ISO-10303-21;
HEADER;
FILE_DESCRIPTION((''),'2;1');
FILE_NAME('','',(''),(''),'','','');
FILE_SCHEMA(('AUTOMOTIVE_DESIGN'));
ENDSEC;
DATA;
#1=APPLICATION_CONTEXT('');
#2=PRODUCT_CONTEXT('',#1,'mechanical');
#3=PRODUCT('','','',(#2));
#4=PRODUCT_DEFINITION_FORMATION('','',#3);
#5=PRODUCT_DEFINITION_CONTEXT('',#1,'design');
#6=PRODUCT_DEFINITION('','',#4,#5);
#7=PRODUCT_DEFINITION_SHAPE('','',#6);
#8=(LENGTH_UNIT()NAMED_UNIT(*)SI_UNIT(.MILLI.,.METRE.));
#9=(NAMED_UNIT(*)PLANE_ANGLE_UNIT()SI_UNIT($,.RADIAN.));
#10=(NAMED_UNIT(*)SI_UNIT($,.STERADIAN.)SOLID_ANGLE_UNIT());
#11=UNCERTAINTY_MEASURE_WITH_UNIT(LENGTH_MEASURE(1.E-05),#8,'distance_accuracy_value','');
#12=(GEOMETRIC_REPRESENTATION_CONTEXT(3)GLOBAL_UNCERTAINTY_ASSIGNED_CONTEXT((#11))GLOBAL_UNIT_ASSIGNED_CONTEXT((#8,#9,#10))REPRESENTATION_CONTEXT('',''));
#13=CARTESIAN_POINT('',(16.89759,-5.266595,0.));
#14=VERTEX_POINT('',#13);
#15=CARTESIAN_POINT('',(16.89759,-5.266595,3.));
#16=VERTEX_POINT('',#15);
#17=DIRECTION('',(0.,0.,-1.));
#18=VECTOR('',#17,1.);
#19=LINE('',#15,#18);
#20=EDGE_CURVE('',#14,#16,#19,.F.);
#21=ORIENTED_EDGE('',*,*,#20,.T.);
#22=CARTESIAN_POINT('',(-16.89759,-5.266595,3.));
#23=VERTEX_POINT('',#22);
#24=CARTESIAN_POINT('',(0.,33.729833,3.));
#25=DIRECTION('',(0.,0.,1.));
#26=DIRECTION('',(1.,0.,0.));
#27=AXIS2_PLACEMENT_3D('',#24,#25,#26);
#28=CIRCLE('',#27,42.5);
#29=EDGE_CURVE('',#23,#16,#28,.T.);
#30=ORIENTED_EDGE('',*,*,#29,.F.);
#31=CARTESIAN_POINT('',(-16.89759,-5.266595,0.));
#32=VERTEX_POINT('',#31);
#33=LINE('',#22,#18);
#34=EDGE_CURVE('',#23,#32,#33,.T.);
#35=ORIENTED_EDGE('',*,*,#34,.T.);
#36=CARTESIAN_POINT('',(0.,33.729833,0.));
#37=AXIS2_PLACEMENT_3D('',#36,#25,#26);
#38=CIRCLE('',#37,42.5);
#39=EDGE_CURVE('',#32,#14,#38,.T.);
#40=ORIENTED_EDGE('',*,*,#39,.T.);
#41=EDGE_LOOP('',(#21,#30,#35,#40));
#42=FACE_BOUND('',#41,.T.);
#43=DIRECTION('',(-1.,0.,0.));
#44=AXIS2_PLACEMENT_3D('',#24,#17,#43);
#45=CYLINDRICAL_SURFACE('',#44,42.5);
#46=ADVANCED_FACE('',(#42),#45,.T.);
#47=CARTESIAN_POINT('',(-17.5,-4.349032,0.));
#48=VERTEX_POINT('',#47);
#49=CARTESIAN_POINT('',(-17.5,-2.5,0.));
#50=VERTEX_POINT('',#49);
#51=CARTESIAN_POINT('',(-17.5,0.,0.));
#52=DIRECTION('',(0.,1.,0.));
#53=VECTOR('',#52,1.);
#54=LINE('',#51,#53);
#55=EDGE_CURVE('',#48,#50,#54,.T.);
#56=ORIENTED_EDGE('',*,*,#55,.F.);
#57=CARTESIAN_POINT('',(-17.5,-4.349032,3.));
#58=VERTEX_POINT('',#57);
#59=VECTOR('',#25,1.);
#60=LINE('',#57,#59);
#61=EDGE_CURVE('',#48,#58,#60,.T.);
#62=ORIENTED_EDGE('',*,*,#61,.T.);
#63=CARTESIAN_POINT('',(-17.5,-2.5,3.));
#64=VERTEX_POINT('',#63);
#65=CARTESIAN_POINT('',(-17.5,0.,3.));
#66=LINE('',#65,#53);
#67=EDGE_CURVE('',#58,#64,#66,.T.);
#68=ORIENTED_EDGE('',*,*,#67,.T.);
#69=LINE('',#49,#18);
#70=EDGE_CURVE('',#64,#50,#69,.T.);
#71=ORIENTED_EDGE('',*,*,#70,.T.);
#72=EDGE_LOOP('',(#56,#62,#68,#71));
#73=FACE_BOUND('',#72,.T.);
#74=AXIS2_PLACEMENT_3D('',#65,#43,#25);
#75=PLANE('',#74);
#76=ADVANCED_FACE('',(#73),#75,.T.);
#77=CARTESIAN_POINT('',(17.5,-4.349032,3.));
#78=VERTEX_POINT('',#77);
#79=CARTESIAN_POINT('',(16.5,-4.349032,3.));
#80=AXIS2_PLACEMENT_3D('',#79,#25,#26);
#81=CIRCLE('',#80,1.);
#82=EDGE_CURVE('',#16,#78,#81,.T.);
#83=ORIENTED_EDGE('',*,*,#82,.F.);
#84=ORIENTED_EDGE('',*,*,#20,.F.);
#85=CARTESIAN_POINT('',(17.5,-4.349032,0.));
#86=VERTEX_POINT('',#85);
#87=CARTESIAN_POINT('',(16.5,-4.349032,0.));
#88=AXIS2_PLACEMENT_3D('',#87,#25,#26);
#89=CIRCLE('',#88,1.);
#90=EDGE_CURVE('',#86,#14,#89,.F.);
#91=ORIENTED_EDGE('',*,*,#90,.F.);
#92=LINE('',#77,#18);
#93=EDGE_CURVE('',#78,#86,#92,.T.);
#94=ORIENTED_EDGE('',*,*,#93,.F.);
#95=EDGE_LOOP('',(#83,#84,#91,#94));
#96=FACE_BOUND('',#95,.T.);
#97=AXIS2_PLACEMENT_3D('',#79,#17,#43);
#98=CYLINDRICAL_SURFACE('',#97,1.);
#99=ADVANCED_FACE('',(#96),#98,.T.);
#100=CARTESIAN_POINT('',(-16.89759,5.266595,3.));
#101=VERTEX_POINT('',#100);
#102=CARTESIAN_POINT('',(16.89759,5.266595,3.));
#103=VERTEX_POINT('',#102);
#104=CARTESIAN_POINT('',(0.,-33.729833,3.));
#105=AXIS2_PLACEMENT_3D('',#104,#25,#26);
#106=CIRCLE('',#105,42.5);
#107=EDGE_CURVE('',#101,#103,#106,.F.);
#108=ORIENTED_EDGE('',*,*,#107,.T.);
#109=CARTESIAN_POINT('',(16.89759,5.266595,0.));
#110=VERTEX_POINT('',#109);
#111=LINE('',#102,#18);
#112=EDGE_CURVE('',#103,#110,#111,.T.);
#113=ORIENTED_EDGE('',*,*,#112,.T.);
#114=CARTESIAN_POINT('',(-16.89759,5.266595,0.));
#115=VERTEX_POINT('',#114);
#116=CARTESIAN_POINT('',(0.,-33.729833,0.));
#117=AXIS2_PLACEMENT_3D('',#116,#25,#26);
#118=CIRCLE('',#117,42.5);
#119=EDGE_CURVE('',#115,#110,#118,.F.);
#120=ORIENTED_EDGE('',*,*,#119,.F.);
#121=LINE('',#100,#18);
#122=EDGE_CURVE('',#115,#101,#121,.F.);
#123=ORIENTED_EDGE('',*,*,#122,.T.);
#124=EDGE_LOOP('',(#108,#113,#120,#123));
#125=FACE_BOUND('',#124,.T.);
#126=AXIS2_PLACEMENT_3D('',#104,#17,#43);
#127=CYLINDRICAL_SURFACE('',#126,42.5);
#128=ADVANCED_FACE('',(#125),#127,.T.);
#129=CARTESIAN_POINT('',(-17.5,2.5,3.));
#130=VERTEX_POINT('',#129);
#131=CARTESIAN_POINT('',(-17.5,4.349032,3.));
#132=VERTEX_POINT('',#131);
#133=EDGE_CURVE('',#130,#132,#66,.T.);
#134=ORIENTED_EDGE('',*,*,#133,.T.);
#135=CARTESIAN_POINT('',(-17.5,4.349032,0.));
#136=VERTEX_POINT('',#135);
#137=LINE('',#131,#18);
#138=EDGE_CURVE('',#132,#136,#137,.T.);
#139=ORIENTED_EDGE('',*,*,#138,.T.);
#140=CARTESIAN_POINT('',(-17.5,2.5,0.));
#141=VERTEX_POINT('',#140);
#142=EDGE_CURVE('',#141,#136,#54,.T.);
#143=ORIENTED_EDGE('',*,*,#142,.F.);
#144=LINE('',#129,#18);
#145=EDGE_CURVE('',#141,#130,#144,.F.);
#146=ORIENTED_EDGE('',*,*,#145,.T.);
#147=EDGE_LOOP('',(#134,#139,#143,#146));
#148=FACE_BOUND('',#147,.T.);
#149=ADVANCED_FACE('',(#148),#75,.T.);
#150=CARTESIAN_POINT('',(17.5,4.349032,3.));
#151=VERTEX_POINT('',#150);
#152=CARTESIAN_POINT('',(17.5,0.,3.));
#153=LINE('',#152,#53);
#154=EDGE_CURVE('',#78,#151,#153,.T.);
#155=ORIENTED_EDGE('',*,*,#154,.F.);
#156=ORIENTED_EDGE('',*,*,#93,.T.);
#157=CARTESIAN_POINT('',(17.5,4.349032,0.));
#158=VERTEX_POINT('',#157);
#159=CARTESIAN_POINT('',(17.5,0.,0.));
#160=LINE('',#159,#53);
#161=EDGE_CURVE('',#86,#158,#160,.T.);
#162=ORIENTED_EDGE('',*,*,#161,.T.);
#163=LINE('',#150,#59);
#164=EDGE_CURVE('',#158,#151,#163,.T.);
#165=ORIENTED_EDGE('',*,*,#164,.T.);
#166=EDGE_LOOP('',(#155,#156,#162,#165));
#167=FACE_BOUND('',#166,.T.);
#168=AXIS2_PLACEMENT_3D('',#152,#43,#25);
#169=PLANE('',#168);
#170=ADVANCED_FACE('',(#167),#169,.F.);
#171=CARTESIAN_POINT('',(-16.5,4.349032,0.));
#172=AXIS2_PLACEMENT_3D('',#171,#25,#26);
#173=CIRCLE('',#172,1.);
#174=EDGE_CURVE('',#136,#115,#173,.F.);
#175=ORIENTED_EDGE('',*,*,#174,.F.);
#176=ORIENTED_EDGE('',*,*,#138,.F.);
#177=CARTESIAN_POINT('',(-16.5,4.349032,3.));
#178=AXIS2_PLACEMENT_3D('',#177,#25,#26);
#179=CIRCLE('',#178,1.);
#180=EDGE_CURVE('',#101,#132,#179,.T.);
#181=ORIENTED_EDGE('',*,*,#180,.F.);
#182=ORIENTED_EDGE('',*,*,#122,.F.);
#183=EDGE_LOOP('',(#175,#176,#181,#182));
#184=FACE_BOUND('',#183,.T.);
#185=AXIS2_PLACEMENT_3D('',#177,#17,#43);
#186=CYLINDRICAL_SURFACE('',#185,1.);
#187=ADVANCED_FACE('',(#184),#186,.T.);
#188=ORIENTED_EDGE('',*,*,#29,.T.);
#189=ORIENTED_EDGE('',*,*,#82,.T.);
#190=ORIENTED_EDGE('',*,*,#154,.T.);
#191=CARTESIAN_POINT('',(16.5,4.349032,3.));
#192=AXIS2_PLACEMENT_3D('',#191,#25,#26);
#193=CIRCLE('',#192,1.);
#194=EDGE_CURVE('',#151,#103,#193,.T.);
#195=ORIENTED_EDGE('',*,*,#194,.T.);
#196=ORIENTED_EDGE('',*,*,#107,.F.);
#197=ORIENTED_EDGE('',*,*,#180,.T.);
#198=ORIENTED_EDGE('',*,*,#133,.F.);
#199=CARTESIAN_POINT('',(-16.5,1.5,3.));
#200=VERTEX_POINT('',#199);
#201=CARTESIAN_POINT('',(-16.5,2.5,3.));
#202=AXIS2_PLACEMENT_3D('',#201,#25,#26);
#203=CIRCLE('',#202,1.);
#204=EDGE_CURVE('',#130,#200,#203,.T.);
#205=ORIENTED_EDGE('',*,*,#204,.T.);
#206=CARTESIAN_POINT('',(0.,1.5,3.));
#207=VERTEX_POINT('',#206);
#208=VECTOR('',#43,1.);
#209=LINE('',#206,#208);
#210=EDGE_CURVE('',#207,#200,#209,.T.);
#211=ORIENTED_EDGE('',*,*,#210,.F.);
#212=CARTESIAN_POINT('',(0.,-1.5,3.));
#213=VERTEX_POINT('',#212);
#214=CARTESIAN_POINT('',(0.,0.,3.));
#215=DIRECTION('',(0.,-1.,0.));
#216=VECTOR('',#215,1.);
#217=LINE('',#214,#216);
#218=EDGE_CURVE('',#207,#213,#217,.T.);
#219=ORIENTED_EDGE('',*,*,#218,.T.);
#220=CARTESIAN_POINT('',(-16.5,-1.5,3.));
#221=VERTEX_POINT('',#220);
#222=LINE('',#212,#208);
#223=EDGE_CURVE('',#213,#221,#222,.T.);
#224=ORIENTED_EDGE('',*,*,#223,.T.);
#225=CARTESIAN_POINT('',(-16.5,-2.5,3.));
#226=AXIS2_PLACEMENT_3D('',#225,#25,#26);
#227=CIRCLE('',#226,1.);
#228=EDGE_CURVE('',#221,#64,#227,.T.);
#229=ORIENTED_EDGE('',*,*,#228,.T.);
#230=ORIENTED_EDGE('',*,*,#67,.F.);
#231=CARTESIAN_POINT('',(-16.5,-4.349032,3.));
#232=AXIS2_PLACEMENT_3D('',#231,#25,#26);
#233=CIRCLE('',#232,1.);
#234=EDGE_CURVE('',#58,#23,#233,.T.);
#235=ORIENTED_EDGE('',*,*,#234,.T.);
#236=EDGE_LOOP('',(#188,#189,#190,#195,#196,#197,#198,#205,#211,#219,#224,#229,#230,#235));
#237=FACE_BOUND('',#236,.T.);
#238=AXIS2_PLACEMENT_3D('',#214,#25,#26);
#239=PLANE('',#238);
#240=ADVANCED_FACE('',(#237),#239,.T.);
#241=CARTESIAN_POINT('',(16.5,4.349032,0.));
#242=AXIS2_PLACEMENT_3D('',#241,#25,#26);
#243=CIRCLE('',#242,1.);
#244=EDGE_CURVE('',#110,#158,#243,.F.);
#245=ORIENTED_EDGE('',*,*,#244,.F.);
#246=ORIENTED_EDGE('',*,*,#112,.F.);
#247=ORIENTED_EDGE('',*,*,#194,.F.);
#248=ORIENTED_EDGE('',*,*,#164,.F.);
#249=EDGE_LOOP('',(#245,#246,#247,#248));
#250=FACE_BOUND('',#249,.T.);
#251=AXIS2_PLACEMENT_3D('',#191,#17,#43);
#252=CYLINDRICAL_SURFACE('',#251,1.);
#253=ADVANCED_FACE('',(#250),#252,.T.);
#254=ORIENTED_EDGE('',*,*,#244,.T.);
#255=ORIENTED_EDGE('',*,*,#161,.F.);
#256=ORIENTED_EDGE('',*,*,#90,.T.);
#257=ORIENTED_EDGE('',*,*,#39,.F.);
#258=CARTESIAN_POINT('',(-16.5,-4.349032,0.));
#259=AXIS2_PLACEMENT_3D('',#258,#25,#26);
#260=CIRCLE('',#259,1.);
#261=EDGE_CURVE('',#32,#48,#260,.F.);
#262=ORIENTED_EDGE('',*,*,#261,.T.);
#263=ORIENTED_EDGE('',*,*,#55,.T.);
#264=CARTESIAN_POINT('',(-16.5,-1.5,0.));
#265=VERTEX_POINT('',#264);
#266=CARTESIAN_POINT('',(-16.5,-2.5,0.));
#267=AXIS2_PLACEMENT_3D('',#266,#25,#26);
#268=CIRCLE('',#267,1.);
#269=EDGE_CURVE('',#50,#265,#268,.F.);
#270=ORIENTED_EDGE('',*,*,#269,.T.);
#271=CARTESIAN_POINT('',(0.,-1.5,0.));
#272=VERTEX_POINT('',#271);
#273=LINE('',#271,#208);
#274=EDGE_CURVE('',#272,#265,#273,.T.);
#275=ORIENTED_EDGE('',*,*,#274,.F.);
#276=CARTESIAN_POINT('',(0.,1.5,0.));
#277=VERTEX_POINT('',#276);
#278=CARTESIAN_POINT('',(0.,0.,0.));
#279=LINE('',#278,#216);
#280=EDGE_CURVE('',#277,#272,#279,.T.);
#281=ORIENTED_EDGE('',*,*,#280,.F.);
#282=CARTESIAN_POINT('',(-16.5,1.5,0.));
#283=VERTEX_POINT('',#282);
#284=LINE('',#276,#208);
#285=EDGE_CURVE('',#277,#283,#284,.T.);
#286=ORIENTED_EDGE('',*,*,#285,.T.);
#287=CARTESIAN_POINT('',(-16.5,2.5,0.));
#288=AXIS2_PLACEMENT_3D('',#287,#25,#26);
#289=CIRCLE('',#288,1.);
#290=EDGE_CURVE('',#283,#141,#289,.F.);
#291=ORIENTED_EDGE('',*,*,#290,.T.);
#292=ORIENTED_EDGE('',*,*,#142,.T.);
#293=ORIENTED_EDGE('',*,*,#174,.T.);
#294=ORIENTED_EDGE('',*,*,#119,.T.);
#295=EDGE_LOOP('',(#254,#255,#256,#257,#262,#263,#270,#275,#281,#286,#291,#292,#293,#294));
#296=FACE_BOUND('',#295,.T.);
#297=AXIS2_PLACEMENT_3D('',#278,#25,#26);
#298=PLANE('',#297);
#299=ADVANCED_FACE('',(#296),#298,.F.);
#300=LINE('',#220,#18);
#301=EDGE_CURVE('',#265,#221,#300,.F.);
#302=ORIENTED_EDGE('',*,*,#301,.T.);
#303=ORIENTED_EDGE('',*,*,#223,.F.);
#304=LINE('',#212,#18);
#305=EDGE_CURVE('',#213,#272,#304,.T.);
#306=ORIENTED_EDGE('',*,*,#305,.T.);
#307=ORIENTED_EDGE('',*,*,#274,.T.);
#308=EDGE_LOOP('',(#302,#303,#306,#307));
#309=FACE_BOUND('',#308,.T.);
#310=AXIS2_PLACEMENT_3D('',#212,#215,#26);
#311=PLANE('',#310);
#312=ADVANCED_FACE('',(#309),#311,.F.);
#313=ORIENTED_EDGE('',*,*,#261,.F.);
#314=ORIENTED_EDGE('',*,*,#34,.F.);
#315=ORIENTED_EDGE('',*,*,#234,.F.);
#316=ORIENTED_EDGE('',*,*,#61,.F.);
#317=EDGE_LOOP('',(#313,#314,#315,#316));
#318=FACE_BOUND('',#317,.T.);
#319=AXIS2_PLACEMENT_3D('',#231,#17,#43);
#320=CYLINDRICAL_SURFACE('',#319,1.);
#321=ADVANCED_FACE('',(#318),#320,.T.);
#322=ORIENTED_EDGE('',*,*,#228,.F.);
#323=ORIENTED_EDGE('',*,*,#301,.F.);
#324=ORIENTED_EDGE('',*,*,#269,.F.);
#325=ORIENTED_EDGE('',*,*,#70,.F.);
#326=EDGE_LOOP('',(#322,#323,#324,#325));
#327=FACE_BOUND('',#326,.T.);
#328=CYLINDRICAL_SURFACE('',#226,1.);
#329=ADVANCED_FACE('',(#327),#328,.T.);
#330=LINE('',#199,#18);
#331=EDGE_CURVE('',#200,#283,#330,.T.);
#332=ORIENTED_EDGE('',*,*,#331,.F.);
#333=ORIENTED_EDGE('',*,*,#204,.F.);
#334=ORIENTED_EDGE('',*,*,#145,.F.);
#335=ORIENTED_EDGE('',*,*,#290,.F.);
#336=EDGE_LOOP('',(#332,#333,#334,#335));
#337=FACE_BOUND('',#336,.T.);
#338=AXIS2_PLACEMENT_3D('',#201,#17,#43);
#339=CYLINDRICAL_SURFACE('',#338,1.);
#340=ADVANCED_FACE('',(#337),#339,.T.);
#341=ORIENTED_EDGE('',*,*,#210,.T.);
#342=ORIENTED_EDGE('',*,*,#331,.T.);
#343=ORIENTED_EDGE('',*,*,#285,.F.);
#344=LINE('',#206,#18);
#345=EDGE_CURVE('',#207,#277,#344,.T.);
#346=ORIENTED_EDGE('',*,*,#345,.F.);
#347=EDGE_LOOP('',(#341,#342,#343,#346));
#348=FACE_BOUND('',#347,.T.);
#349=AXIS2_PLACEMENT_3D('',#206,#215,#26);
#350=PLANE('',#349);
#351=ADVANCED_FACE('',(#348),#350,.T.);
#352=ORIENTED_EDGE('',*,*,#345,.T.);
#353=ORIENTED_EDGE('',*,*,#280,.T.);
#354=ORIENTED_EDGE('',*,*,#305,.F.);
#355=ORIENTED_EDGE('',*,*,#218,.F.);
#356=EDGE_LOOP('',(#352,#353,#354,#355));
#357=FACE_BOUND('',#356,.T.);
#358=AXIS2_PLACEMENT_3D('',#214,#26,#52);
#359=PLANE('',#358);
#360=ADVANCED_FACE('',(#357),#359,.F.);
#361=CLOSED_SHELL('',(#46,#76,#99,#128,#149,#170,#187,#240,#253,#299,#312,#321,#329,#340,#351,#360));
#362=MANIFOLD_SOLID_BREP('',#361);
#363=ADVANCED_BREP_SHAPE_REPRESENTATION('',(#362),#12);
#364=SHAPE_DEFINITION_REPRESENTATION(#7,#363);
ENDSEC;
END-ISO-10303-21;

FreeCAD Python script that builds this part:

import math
import FreeCAD as App
import Part
import Sketcher
Q = App.Units.Quantity


def edges_at(feature, points):
    """Names of the edges that pass closest to the given points."""
    edges = feature.Shape.Edges
    near = lambda p: min(range(len(edges)), key=lambda i: edges[i].distToShape(Part.Vertex(*p))[0])
    return sorted({f"Edge{near(p) + 1}" for p in points})

doc = App.newDocument("Part")
body = doc.addObject("PartDesign::Body", "Body")

# Sketch on XY plane
sketch1 = body.newObject("Sketcher::SketchObject", "Sketch")
sketch1.AttachmentSupport = (doc.getObject("XY_Plane"), [""])
sketch1.MapMode = "FlatFace"
sketch1.addGeometry(Part.LineSegment(App.Vector(-17.5, -1.5, 0), App.Vector(-17.5, -5, 0)), False)
sketch1.addGeometry(Part.ArcOfCircle(Part.Circle(App.Vector(0, 33.729833, 0), App.Vector(0, 0, 1), 42.5), math.radians(-114.315739), math.radians(-65.684261)), False)
sketch1.addGeometry(Part.LineSegment(App.Vector(17.5, -5, 0), App.Vector(17.5, 5, 0)), False)
sketch1.addGeometry(Part.ArcOfCircle(Part.Circle(App.Vector(0, -33.729833, 0), App.Vector(0, 0, 1), 42.5), math.radians(65.684261), math.radians(114.315739)), False)
sketch1.addGeometry(Part.LineSegment(App.Vector(-17.5, 5, 0), App.Vector(-17.5, 1.5, 0)), False)
sketch1.addGeometry(Part.LineSegment(App.Vector(-17.5, 1.5, 0), App.Vector(0, 1.5, 0)), False)
sketch1.addGeometry(Part.LineSegment(App.Vector(0, 1.5, 0), App.Vector(0, -1.5, 0)), False)
sketch1.addGeometry(Part.LineSegment(App.Vector(0, -1.5, 0), App.Vector(-17.5, -1.5, 0)), False)
sketch1.addConstraint(Sketcher.Constraint("Coincident", 0, 2, 1, 1))
sketch1.addConstraint(Sketcher.Constraint("Coincident", 1, 2, 2, 1))
sketch1.addConstraint(Sketcher.Constraint("Coincident", 2, 2, 3, 1))
sketch1.addConstraint(Sketcher.Constraint("Coincident", 3, 2, 4, 1))
sketch1.addConstraint(Sketcher.Constraint("Coincident", 4, 2, 5, 1))
sketch1.addConstraint(Sketcher.Constraint("Coincident", 5, 2, 6, 1))
sketch1.addConstraint(Sketcher.Constraint("Coincident", 6, 2, 7, 1))
sketch1.addConstraint(Sketcher.Constraint("Coincident", 7, 2, 0, 1))
sketch1.addConstraint(Sketcher.Constraint("Vertical", 0))
sketch1.addConstraint(Sketcher.Constraint("Vertical", 2))
sketch1.addConstraint(Sketcher.Constraint("Vertical", 4))
sketch1.addConstraint(Sketcher.Constraint("Horizontal", 5))
sketch1.addConstraint(Sketcher.Constraint("Vertical", 6))
sketch1.addConstraint(Sketcher.Constraint("Horizontal", 7))
sketch1.addConstraint(Sketcher.Constraint("Equal", 1, 3))
sketch1.addConstraint(Sketcher.Constraint("Symmetric", 1, 3, 3, 3, -1, 1))
sketch1.addConstraint(Sketcher.Constraint("Symmetric", 5, 2, 6, 2, -1, 1))
sketch1.addConstraint(Sketcher.Constraint("Symmetric", 0, 2, 1, 2, -2))
sketch1.addConstraint(Sketcher.Constraint("Horizontal", 2, 2, 3, 2))
sketch1.addConstraint(Sketcher.Constraint("Radius", 1, Q("42.5 mm")))
sketch1.addConstraint(Sketcher.Constraint("DistanceY", 2, 1, 2, 2, Q("10 mm")))
sketch1.addConstraint(Sketcher.Constraint("DistanceY", 6, 2, 6, 1, Q("3 mm")))
sketch1.addConstraint(Sketcher.Constraint("DistanceX", 5, 1, 5, 2, Q("17.5 mm")))
pad1 = body.newObject("PartDesign::Pad", "Pad")
pad1.Profile = sketch1
pad1.Length = 3
doc.recompute()

fillet = body.newObject("PartDesign::Fillet", "Fillet")
fillet.Base = (pad1, edges_at(pad1, [
    (-17.5, 1.5, 1.5),
    (-17.5, 5, 1.5),
    (17.5, 5, 1.5),
    (17.5, -5, 1.5),
    (-17.5, -5, 1.5),
    (-17.5, -1.5, 1.5),
]))
fillet.Radius = 1

doc.recompute()
